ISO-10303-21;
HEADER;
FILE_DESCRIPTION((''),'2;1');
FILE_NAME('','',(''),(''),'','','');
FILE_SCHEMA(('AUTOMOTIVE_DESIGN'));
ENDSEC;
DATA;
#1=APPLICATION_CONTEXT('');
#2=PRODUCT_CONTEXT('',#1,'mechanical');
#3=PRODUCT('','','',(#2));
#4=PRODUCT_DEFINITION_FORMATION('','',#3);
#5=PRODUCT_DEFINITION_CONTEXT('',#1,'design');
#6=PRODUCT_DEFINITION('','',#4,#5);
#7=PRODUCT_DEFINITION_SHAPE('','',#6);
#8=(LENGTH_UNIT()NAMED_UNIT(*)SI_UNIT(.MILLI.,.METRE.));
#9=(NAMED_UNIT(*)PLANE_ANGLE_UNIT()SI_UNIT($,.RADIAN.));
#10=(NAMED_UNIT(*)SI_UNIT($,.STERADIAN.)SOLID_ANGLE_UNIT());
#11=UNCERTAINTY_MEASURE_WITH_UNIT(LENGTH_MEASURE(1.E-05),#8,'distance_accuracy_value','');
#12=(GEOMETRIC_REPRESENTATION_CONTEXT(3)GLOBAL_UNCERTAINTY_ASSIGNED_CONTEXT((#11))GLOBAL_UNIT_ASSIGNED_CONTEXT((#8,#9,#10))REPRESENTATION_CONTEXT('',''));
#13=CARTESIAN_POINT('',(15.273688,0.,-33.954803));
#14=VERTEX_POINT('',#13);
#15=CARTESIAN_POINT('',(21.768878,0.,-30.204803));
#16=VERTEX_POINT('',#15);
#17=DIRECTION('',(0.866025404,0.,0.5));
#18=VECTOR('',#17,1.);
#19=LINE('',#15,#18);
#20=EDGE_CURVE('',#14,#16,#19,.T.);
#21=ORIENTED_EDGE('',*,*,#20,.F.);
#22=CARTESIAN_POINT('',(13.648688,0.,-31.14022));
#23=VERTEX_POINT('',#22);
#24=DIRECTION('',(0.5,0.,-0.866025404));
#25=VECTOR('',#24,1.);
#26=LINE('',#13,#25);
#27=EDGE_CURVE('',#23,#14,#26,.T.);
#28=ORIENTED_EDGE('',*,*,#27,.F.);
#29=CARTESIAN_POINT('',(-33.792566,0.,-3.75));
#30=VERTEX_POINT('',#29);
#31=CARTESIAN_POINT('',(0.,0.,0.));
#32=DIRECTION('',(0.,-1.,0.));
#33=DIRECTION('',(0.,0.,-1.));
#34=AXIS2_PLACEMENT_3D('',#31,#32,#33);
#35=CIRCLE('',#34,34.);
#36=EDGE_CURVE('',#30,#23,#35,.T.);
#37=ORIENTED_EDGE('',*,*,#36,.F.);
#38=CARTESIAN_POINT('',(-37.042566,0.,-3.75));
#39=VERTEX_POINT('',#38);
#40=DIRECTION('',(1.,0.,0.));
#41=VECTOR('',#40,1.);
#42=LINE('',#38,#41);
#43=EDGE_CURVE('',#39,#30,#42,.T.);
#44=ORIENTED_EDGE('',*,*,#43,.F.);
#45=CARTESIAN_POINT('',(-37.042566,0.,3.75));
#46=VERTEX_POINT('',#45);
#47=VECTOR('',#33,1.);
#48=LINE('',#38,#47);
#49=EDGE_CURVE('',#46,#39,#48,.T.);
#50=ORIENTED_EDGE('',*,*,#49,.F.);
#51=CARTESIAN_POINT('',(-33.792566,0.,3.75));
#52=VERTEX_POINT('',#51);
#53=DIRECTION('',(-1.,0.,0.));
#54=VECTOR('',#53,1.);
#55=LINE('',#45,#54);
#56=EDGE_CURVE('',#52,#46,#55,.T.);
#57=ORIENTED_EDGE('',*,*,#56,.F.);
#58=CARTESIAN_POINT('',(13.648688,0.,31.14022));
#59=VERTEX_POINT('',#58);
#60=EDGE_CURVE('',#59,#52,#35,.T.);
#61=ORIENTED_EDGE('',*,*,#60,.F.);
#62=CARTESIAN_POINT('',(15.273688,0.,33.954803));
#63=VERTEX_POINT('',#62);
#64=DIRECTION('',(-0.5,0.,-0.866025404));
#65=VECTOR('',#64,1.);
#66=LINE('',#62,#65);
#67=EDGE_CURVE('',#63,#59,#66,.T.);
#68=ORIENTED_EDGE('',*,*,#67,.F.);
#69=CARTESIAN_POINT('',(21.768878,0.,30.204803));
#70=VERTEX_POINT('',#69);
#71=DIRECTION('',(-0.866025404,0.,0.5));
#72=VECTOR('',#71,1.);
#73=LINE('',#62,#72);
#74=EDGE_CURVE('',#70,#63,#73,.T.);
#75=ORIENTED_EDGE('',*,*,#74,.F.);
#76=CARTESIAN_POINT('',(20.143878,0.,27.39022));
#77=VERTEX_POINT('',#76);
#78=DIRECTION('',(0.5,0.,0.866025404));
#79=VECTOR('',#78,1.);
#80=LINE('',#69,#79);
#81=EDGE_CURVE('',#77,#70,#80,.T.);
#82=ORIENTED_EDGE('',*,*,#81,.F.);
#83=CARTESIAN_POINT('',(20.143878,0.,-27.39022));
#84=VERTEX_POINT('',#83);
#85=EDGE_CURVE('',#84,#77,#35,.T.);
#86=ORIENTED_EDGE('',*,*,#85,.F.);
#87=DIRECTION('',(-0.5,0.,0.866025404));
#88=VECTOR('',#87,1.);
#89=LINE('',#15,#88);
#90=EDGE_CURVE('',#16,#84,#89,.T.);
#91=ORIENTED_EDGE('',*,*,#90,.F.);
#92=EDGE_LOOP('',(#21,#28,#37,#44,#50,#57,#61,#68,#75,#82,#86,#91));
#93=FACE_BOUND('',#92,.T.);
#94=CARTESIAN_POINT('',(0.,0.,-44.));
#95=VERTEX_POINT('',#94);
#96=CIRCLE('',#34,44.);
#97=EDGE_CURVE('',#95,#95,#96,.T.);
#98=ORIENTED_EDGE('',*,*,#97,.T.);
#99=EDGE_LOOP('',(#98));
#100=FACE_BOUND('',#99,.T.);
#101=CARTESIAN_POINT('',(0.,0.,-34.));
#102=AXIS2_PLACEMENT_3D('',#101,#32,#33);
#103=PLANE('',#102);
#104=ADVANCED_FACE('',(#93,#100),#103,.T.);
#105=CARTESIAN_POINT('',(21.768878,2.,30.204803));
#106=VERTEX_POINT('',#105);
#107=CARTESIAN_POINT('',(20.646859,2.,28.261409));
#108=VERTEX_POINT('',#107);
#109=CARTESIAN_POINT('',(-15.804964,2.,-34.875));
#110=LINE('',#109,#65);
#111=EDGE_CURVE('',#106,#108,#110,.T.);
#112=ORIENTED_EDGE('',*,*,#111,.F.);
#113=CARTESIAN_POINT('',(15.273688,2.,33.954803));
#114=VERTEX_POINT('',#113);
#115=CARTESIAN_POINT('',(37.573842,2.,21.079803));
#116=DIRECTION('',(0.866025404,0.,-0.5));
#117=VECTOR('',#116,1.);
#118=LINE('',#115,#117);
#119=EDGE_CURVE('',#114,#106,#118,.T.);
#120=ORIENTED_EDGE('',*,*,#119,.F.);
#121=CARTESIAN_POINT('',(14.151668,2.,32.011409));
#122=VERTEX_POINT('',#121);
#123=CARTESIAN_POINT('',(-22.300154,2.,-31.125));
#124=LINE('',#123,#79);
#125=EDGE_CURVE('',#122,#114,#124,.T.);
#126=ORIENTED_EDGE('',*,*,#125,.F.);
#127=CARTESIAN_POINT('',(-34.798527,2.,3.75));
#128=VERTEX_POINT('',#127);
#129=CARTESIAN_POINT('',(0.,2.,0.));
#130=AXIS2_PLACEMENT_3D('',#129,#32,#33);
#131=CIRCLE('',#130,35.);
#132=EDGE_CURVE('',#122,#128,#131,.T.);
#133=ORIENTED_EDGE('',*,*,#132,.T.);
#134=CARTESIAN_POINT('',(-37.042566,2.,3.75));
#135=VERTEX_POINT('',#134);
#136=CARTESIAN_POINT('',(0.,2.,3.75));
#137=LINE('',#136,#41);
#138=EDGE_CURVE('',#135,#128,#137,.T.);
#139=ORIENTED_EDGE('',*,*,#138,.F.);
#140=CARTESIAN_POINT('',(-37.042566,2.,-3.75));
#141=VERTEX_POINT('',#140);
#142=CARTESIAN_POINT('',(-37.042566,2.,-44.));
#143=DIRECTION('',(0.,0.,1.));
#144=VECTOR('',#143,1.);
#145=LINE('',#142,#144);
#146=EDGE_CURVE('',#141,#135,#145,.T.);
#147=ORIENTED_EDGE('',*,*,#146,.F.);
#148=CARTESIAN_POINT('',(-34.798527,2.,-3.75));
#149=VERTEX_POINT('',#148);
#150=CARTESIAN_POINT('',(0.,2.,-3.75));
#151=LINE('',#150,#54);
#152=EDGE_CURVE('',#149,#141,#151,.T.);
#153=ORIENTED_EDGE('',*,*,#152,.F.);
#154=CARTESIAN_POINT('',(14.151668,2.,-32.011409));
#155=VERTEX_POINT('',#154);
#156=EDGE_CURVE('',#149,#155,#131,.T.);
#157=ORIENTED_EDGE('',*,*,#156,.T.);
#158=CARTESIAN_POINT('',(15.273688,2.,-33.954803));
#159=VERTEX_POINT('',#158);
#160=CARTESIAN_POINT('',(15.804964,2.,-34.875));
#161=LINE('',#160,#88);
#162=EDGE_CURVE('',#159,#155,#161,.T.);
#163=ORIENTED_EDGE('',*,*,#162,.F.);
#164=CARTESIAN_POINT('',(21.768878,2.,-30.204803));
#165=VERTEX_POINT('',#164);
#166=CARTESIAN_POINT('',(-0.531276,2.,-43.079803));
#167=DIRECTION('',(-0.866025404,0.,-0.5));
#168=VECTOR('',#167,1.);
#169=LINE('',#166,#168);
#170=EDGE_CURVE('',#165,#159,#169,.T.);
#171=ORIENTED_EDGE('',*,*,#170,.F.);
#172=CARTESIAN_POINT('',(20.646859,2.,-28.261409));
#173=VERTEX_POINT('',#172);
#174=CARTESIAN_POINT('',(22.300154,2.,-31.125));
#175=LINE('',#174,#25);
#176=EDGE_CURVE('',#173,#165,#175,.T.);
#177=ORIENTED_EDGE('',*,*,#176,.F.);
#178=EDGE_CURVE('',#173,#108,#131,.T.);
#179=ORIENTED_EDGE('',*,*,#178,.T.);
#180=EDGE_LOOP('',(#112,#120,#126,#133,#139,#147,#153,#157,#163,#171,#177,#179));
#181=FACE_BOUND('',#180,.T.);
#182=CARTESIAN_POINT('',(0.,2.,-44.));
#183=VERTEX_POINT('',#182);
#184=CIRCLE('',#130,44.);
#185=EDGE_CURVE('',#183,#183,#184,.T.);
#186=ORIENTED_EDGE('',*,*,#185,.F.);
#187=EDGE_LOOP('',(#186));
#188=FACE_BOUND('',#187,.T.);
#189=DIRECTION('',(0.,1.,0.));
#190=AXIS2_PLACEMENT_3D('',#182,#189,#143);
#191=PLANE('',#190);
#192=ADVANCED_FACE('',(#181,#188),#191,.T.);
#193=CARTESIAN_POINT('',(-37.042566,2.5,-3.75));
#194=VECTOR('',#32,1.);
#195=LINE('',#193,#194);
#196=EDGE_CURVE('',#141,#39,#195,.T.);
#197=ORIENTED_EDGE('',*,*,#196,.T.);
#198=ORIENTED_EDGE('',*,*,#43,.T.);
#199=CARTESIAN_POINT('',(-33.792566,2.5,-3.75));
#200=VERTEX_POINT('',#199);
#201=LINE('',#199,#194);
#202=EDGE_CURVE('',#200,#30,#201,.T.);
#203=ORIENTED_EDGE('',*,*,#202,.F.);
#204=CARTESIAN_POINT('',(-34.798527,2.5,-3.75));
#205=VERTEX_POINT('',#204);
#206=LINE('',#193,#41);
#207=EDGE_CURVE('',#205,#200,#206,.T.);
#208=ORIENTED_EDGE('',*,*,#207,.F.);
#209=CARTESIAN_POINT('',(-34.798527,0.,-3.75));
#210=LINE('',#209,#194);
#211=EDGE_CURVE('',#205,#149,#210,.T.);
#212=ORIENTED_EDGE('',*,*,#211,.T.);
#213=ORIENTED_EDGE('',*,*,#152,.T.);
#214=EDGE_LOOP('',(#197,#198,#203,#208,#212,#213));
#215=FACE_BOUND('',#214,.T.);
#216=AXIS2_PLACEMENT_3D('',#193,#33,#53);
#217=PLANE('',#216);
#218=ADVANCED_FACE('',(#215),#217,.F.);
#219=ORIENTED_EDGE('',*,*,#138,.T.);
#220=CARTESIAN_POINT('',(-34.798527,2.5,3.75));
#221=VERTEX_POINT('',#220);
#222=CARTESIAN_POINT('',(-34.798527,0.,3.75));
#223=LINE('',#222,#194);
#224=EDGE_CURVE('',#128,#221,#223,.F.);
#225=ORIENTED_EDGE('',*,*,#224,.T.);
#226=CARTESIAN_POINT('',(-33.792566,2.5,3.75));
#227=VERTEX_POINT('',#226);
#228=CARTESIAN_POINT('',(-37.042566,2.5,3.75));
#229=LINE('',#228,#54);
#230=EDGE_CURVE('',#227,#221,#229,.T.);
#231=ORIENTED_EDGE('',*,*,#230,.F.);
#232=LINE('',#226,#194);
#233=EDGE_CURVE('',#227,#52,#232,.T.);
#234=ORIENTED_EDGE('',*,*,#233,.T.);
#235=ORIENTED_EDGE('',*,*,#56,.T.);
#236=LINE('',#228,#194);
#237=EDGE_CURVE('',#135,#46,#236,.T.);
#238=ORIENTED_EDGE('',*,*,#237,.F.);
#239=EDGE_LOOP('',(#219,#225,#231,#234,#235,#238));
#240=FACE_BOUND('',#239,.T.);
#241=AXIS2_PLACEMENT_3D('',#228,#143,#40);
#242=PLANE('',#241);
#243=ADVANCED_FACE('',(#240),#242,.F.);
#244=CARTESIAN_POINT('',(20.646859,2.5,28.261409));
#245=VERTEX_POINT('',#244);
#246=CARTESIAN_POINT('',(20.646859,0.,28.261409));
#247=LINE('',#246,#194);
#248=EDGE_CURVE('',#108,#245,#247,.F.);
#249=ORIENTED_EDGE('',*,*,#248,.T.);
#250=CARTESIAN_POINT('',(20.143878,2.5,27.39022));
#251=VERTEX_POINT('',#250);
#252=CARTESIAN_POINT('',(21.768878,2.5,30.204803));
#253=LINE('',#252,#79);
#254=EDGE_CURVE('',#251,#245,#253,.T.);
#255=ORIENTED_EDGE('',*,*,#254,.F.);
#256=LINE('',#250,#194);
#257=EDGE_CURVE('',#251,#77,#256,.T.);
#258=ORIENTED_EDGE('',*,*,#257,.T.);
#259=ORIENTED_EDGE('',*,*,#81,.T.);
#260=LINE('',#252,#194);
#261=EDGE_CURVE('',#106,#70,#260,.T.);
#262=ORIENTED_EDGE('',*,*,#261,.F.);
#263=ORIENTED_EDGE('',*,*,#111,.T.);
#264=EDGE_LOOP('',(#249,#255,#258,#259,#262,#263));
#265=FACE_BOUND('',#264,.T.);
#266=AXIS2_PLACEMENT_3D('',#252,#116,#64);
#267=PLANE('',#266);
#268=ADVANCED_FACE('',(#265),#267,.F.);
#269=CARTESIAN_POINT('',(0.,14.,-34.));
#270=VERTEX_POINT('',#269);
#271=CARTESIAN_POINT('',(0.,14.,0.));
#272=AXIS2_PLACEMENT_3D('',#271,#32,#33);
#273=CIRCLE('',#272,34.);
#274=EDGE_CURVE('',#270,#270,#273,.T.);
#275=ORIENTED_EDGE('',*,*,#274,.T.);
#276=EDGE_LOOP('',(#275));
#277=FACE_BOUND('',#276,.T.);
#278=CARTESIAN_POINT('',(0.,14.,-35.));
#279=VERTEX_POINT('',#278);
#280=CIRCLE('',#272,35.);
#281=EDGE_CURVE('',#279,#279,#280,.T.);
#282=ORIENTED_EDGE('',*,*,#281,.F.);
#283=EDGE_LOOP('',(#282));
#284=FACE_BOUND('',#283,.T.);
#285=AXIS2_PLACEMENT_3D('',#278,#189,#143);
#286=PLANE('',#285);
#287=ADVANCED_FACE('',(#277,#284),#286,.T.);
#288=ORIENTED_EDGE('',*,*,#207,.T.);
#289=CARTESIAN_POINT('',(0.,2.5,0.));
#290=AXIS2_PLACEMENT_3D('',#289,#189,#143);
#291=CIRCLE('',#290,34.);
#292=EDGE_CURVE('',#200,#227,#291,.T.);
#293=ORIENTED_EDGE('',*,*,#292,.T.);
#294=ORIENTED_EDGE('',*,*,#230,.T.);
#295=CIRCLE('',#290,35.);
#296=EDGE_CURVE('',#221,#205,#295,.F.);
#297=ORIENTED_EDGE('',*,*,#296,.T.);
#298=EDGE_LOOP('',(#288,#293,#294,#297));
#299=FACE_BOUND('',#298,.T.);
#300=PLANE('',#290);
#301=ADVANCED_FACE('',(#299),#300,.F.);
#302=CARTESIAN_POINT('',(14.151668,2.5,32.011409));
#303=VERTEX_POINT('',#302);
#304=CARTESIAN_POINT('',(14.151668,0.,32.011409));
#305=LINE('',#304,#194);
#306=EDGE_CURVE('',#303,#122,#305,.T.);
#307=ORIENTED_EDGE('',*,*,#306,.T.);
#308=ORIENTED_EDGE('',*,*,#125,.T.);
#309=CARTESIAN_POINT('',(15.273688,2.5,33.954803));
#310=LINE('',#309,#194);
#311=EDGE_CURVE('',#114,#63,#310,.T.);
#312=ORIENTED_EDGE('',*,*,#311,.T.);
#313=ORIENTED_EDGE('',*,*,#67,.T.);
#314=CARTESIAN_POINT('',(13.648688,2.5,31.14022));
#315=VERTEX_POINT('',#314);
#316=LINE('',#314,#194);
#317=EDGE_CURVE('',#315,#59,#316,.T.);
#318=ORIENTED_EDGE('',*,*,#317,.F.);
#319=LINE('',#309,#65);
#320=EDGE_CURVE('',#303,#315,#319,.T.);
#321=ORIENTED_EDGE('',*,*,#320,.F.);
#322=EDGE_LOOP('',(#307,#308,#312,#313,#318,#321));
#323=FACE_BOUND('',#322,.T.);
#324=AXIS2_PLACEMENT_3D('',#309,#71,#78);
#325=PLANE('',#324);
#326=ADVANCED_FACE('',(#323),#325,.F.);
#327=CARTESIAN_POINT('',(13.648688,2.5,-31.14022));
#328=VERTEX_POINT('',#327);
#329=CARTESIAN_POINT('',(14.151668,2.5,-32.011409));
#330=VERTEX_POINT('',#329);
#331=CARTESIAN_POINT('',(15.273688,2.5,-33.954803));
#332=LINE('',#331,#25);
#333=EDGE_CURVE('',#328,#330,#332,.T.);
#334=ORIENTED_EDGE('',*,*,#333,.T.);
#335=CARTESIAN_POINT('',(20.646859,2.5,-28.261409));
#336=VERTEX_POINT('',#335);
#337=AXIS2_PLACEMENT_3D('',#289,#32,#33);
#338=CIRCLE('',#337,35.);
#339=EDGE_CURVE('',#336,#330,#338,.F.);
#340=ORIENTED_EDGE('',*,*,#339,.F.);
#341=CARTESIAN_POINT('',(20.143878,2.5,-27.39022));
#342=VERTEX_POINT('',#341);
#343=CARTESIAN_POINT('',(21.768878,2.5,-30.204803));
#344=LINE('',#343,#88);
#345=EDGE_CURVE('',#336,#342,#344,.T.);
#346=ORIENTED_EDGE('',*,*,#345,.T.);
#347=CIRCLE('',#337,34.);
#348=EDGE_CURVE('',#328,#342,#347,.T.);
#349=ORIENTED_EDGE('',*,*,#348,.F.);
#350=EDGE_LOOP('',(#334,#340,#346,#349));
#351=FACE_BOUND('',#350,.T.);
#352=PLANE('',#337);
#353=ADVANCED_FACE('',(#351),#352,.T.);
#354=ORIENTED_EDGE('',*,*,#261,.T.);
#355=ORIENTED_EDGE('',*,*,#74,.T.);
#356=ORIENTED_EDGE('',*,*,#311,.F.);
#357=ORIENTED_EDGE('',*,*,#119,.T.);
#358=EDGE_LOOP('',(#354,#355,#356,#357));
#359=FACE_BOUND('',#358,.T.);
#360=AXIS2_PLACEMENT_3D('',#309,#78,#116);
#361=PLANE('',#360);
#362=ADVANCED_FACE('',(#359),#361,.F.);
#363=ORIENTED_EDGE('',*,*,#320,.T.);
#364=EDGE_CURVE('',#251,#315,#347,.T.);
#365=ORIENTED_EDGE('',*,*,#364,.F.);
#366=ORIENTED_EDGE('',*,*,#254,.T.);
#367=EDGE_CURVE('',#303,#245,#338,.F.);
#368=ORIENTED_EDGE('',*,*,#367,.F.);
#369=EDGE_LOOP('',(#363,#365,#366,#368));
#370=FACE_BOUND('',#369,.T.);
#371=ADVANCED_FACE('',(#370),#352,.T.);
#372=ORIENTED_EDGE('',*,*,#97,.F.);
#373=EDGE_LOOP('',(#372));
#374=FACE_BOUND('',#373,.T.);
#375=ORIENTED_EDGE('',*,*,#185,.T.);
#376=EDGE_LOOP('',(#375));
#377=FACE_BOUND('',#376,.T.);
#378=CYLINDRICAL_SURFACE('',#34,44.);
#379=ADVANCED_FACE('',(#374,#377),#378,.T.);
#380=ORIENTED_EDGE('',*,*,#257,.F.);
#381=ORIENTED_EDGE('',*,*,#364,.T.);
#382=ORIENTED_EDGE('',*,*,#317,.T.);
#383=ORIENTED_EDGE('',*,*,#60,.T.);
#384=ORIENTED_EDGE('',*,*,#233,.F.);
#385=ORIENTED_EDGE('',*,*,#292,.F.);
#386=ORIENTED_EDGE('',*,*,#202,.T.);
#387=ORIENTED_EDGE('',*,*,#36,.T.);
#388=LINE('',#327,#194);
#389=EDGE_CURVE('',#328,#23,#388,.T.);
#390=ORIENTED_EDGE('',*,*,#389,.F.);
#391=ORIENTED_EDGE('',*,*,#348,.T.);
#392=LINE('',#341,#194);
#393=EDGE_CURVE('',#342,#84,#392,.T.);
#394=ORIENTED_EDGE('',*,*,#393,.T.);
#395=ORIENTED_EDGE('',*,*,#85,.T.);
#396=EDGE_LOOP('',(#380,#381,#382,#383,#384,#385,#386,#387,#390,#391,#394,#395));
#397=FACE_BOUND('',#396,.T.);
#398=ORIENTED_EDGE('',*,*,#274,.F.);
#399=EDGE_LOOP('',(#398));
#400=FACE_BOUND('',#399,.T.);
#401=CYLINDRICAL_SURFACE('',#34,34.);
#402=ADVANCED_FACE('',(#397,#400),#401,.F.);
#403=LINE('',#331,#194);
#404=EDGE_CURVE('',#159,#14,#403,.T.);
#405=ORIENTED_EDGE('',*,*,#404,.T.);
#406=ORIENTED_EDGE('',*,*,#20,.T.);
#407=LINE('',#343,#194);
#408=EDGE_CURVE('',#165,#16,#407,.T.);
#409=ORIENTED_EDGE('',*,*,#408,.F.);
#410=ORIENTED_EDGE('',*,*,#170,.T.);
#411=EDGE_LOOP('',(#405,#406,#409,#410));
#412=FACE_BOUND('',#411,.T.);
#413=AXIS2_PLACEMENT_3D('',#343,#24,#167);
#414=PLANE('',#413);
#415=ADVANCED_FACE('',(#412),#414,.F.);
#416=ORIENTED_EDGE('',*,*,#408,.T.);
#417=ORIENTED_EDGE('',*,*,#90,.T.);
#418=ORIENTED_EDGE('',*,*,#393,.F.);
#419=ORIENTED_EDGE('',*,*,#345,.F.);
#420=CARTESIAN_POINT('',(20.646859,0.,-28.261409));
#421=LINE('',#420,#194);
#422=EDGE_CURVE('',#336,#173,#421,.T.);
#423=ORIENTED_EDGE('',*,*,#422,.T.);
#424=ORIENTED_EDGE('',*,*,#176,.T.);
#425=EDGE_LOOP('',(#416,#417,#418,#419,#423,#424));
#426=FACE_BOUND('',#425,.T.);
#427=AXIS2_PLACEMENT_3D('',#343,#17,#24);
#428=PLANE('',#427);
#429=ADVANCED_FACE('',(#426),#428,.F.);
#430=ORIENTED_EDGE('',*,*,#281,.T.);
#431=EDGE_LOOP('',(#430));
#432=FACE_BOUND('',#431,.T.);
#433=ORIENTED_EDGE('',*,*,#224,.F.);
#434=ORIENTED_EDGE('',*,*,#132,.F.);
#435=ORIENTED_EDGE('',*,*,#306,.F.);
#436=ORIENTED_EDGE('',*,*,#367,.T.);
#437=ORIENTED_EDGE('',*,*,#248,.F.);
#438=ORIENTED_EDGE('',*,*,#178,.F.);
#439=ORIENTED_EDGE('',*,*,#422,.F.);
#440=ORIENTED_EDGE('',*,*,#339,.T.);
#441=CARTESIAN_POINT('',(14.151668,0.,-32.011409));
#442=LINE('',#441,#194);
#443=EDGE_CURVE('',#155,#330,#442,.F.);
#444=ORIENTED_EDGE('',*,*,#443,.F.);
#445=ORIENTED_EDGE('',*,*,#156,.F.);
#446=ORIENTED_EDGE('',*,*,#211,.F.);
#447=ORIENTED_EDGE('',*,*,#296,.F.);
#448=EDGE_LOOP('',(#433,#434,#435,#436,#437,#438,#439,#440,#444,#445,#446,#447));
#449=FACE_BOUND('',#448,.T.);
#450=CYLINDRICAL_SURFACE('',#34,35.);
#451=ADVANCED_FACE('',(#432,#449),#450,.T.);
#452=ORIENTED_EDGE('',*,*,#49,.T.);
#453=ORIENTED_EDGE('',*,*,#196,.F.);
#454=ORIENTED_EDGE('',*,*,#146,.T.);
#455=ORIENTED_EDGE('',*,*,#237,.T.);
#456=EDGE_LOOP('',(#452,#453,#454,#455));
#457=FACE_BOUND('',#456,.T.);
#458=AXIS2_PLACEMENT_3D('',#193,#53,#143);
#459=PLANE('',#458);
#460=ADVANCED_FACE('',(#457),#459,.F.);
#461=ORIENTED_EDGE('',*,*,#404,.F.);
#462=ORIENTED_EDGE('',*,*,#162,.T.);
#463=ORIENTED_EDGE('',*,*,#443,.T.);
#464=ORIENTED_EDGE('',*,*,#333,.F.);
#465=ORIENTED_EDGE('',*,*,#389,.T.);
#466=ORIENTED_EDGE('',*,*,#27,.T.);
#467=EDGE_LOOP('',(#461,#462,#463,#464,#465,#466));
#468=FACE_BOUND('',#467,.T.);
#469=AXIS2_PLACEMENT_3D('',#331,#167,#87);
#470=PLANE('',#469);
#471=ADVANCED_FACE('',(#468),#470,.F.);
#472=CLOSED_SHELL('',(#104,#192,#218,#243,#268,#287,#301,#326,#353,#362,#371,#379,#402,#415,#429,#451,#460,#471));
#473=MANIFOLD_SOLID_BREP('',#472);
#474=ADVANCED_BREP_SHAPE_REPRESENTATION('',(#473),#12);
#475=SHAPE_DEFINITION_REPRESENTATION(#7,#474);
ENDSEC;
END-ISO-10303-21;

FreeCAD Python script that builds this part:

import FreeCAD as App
import Part
import Sketcher
Q = App.Units.Quantity


def add_polygon(sketch, points):
    """Adds a closed chain of lines whose ends are joined by coincident constraints."""
    first, n = sketch.GeometryCount, len(points)
    for a, b in zip(points, points[1:] + points[:1]):
        sketch.addGeometry(Part.LineSegment(App.Vector(*a, 0), App.Vector(*b, 0)), False)
    for i in range(n):
        sketch.addConstraint(Sketcher.Constraint("Coincident", first + i, 2, first + (i + 1) % n, 1))

doc = App.newDocument("Part")
params = doc.addObject("Spreadsheet::Sheet", "Params")
for row, (alias, value) in enumerate([
    ("sketch1_width", "2 mm"),
    ("sketch1_width2", "12 mm"),
    ("sketch1_height", "10 mm"),
    ("sketch1_height2", "9 mm"),
    ("revolution_angle", "360 deg"),
    ("sketch2_height", "7.5 mm"),
    ("sketch2_length", "7.5 mm"),
    ("sketch2_width", "3.25 mm"),
    ("sketch2_length2", "3.25 mm"),
    ("pocket1_length", "2.5 mm"),
], start=1):
    params.set(f"A{row}", alias)
    params.set(f"B{row}", "=" + value)
    params.setAlias(f"B{row}", alias)

body = doc.addObject("PartDesign::Body", "Body")

# Sketch on YZ plane
sketch1 = body.newObject("Sketcher::SketchObject", "Sketch")
sketch1.AttachmentSupport = (doc.getObject("YZ_Plane"), [""])
sketch1.MapMode = "FlatFace"
add_polygon(sketch1, [(0, -34), (0, -44), (2, -44), (2, -35), (14, -35), (14, -34)])  # lines 0-5
sketch1.addConstraint([
    Sketcher.Constraint("Vertical", 0),
    Sketcher.Constraint("Horizontal", 1),
    Sketcher.Constraint("Vertical", 2),
    Sketcher.Constraint("Horizontal", 3),
    Sketcher.Constraint("Vertical", 4),
    Sketcher.Constraint("Horizontal", 5),
    Sketcher.Constraint("PointOnObject", 0, 2, -2),
    Sketcher.Constraint("DistanceX", 1, 1, 1, 2, Q("2 mm")),
    Sketcher.Constraint("DistanceX", 3, 1, 3, 2, Q("12 mm")),
    Sketcher.Constraint("DistanceY", 0, 2, 0, 1, Q("10 mm")),
    Sketcher.Constraint("DistanceY", 2, 1, 2, 2, Q("9 mm")),
    Sketcher.Constraint("DistanceY", 0, 2, -1, 1, Q("44 mm")),
])
sketch1.setExpression("Constraints[13]", "Params.sketch1_width")
sketch1.setExpression("Constraints[14]", "Params.sketch1_width2")
sketch1.setExpression("Constraints[15]", "Params.sketch1_height")
sketch1.setExpression("Constraints[16]", "Params.sketch1_height2")
revolution = body.newObject("PartDesign::Revolution", "Revolution")
revolution.Profile = sketch1
revolution.ReferenceAxis = (sketch1, ["H_Axis"])
revolution.setExpression("Angle", "Params.revolution_angle")

# Sketch on XZ plane
sketch2 = body.newObject("Sketcher::SketchObject", "Sketch001")
sketch2.AttachmentSupport = (doc.getObject("XZ_Plane"), [""])
sketch2.MapMode = "FlatFace"
add_polygon(sketch2, [(21.768878, 30.204803), (15.273688, 33.954803), (13.648688, 31.14022), (20.143878, 27.39022)])  # lines 0-3
add_polygon(sketch2, [(-33.792566, -3.75), (-33.792566, 3.75), (-37.042566, 3.75), (-37.042566, -3.75)])  # lines 4-7
add_polygon(sketch2, [(15.273688, -33.954803), (21.768878, -30.204803), (20.143878, -27.39022), (13.648688, -31.14022)])  # lines 8-11
sketch2.addConstraint([
    Sketcher.Constraint("Vertical", 4),
    Sketcher.Constraint("Horizontal", 5),
    Sketcher.Constraint("Vertical", 6),
    Sketcher.Constraint("Horizontal", 7),
    Sketcher.Constraint("Symmetric", 3, 2, 8, 2, -1),
    Sketcher.Constraint("Symmetric", 2, 2, 9, 2, -1),
    Sketcher.Constraint("Symmetric", 1, 2, 10, 2, -1),
    Sketcher.Constraint("Symmetric", 0, 2, 11, 2, -1),
    Sketcher.Constraint("Perpendicular", 0, 1),
    Sketcher.Constraint("Perpendicular", 1, 2),
    Sketcher.Constraint("Perpendicular", 2, 3),
    Sketcher.Constraint("Angle", 0, Q("150 deg")),
    Sketcher.Constraint("DistanceY", 4, 1, 4, 2, Q("7.5 mm")),
    Sketcher.Constraint("Distance", 0, Q("7.5 mm")),
    Sketcher.Constraint("DistanceX", 5, 2, 5, 1, Q("3.25 mm")),
    Sketcher.Constraint("Distance", 1, Q("3.25 mm")),
    Sketcher.Constraint("DistanceY", -1, 1, 4, 2, Q("3.75 mm")),
    Sketcher.Constraint("DistanceY", -1, 1, 1, 2, Q("31.14022 mm")),
    Sketcher.Constraint("DistanceX", -1, 1, 2, 2, Q("20.143878 mm")),
    Sketcher.Constraint("DistanceX", 4, 2, -1, 1, Q("33.792566 mm")),
])
sketch2.setExpression("Constraints[24]", "Params.sketch2_height")
sketch2.setExpression("Constraints[25]", "Params.sketch2_length")
sketch2.setExpression("Constraints[26]", "Params.sketch2_width")
sketch2.setExpression("Constraints[27]", "Params.sketch2_length2")
pocket1 = body.newObject("PartDesign::Pocket", "Pocket")
pocket1.Profile = sketch2
pocket1.setExpression("Length", "Params.pocket1_length")

doc.recompute()
